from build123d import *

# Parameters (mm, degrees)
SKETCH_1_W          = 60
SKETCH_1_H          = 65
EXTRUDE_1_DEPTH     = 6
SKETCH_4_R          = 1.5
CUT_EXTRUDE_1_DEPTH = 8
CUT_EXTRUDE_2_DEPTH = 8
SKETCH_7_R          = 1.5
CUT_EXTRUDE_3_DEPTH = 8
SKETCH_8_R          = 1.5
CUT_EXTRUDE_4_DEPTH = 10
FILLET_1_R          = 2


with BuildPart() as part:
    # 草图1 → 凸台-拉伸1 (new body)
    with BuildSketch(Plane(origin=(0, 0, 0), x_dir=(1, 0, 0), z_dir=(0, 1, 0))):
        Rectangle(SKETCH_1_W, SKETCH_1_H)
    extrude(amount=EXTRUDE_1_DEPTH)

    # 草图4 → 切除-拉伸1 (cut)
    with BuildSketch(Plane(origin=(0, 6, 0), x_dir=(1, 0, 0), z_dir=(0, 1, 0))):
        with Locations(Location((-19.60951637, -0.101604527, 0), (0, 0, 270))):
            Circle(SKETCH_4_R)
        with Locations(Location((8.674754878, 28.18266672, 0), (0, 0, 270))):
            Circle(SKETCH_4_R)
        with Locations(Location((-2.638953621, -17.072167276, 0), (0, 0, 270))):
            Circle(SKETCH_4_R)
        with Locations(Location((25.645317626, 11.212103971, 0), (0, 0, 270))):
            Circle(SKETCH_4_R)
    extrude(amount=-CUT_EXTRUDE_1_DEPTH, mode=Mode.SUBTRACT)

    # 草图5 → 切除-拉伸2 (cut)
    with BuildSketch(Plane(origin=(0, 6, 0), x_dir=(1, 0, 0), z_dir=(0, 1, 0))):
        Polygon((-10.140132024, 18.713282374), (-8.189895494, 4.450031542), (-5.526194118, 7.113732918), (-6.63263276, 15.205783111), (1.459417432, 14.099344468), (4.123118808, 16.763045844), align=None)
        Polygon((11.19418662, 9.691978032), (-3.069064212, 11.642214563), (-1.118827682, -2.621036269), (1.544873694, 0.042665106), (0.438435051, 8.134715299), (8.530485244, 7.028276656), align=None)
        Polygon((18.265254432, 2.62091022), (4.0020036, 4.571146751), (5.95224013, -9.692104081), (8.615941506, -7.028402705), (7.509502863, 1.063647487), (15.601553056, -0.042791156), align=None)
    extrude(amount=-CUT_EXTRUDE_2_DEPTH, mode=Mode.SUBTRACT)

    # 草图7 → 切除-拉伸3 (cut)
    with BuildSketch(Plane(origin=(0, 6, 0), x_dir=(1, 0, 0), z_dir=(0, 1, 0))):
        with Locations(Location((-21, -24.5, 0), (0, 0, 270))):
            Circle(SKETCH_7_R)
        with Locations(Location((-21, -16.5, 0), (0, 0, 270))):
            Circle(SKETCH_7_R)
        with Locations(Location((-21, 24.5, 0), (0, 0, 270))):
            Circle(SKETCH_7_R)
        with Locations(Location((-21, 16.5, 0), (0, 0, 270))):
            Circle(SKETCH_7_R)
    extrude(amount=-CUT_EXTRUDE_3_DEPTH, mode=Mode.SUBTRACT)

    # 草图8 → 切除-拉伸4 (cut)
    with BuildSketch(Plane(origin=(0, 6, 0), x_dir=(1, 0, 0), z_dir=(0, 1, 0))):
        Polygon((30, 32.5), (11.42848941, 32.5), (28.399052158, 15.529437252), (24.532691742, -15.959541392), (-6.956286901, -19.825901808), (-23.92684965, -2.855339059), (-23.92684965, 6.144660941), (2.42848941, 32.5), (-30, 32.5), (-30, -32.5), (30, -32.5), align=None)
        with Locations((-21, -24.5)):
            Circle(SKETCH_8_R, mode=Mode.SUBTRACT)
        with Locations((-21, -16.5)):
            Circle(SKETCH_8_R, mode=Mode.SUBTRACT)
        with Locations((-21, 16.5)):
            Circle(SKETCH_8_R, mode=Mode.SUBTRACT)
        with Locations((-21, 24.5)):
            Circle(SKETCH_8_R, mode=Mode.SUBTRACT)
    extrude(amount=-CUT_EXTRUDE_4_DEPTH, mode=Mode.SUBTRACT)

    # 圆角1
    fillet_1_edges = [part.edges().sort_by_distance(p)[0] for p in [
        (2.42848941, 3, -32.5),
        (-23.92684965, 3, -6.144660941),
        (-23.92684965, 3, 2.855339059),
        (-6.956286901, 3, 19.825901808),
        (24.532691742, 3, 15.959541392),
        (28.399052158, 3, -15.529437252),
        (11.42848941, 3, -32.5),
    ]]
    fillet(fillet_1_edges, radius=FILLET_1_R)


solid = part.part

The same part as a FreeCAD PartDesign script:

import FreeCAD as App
import Part
import Sketcher
Q = App.Units.Quantity


def edges_at(feature, points):
    """Names of the edges that pass closest to the given points."""
    edges = feature.Shape.Edges
    near = lambda p: min(range(len(edges)), key=lambda i: edges[i].distToShape(Part.Vertex(*p))[0])
    return sorted({f"Edge{near(p) + 1}" for p in points})


def add_polygon(sketch, points):
    """Adds a closed chain of lines whose ends are joined by coincident constraints."""
    first, n = sketch.GeometryCount, len(points)
    for a, b in zip(points, points[1:] + points[:1]):
        sketch.addGeometry(Part.LineSegment(App.Vector(*a, 0), App.Vector(*b, 0)), False)
    for i in range(n):
        sketch.addConstraint(Sketcher.Constraint("Coincident", first + i, 2, first + (i + 1) % n, 1))

doc = App.newDocument("Part")
params = doc.addObject("Spreadsheet::Sheet", "Params")
for row, (alias, value) in enumerate([
    ("sketch1_width", "60 mm"),
    ("sketch1_height", "65 mm"),
    ("pad1_length", "6 mm"),
    ("sketch2_diameter", "3 mm"),
    ("pocket1_length", "8 mm"),
    ("pocket2_length", "8 mm"),
    ("sketch4_diameter", "3 mm"),
    ("pocket3_length", "8 mm"),
    ("sketch5_diameter", "3 mm"),
    ("sketch5_width", "60 mm"),
    ("sketch5_height", "9 mm"),
    ("sketch5_height2", "65 mm"),
    ("sketch5_length", "24 mm"),
    ("pocket4_length", "10 mm"),
    ("fillet_radius", "2 mm"),
], start=1):
    params.set(f"A{row}", alias)
    params.set(f"B{row}", "=" + value)
    params.setAlias(f"B{row}", alias)

body = doc.addObject("PartDesign::Body", "Body")

sketch1 = body.newObject("Sketcher::SketchObject", "Sketch")
sketch1.AttachmentSupport = (doc.getObject("XZ_Plane"), [""])
sketch1.MapMode = "FlatFace"
add_polygon(sketch1, [(-30, -32), (-30, 32), (30, 32), (30, -32)])
sketch1.addConstraint([
    Sketcher.Constraint("Vertical", 0),
    Sketcher.Constraint("Horizontal", 1),
    Sketcher.Constraint("Vertical", 2),
    Sketcher.Constraint("Horizontal", 3),
    Sketcher.Constraint("Symmetric", 0, 2, 2, 2, -1, 1),
    Sketcher.Constraint("DistanceX", 1, 1, 1, 2, Q("60 mm")),
    Sketcher.Constraint("DistanceY", 0, 1, 0, 2, Q("65 mm")),
])
sketch1.setExpression("Constraints[9]", "Params.sketch1_width")
sketch1.setExpression("Constraints[10]", "Params.sketch1_height")
pad1 = body.newObject("PartDesign::Pad", "Pad")
pad1.Profile = sketch1
pad1.setExpression("Length", "Params.pad1_length")
pad1.Reversed = True

sketch2 = body.newObject("Sketcher::SketchObject", "Sketch001")
sketch2.AttachmentSupport = (doc.getObject("XZ_Plane"), [""])
sketch2.MapMode = "FlatFace"
sketch2.AttachmentOffset = App.Placement(App.Vector(0, 0, -6), App.Rotation())
sketch2.addGeometry([
    Part.Circle(App.Vector(-19.6, 0.1, 0), App.Vector(0, 0, 1), 1.5),
    Part.Circle(App.Vector(8.7, -28.2, 0), App.Vector(0, 0, 1), 1.5),
    Part.Circle(App.Vector(-2.6, 17.1, 0), App.Vector(0, 0, 1), 1.5),
    Part.Circle(App.Vector(25.6, -11.2, 0), App.Vector(0, 0, 1), 1.5),
], False)
sketch2.addConstraint([
    Sketcher.Constraint("Equal", 0, 1),
    Sketcher.Constraint("Equal", 1, 2),
    Sketcher.Constraint("Equal", 2, 3),
    Sketcher.Constraint("Diameter", 0, Q("3 mm")),
    Sketcher.Constraint("DistanceX", 0, 3, 1, 3, Q("28.284271 mm")),
    Sketcher.Constraint("DistanceY", 1, 3, 0, 3, Q("28.284271 mm")),
    Sketcher.Constraint("DistanceX", 2, 3, 1, 3, Q("11.313708 mm")),
    Sketcher.Constraint("DistanceX", 2, 3, 3, 3, Q("28.284271 mm")),
    Sketcher.Constraint("DistanceY", 3, 3, 2, 3, Q("28.284271 mm")),
    Sketcher.Constraint("DistanceY", 3, 3, 0, 3, Q("11.313708 mm")),
    Sketcher.Constraint("DistanceX", 0, 3, -1, 1, Q("19.609516 mm")),
    Sketcher.Constraint("DistanceY", -1, 1, 0, 3, Q("0.101605 mm")),
])
sketch2.setExpression("Constraints[3]", "Params.sketch2_diameter")
pocket1 = body.newObject("PartDesign::Pocket", "Pocket")
pocket1.Profile = sketch2
pocket1.setExpression("Length", "Params.pocket1_length")
pocket1.Reversed = True

sketch3 = body.newObject("Sketcher::SketchObject", "Sketch002")
sketch3.AttachmentSupport = (doc.getObject("XZ_Plane"), [""])
sketch3.MapMode = "FlatFace"
sketch3.AttachmentOffset = App.Placement(App.Vector(0, 0, -6), App.Rotation())
add_polygon(sketch3, [(-10.1, -18.7), (-8.2, -4.5), (-5.5, -7.1), (-6.6, -15.2), (1.5, -14.1), (4.1, -16.8)])
add_polygon(sketch3, [(11.2, -9.7), (-3.1, -11.6), (-1.1, 2.6), (1.5, 0), (0.4, -8.1), (8.5, -7)])
add_polygon(sketch3, [(18.3, -2.6), (4, -4.6), (6, 9.7), (8.6, 7), (7.5, -1.1), (15.6, 0)])
sketch3.addConstraint([
    Sketcher.Constraint("Parallel", 0, 2),
    Sketcher.Constraint("Parallel", 1, 4),
    Sketcher.Constraint("Parallel", 3, 5),
    Sketcher.Constraint("Parallel", 5, 6),
    Sketcher.Constraint("Parallel", 2, 7),
    Sketcher.Constraint("Parallel", 4, 8),
    Sketcher.Constraint("Parallel", 7, 9),
    Sketcher.Constraint("Parallel", 6, 10),
    Sketcher.Constraint("Parallel", 8, 11),
    Sketcher.Constraint("Parallel", 10, 12),
    Sketcher.Constraint("Parallel", 9, 13),
    Sketcher.Constraint("Parallel", 11, 14),
    Sketcher.Constraint("Parallel", 13, 15),
    Sketcher.Constraint("Parallel", 12, 16),
    Sketcher.Constraint("Parallel", 14, 17),
    Sketcher.Constraint("Equal", 2, 3),
    Sketcher.Constraint("Equal", 1, 4),
    Sketcher.Constraint("Equal", 0, 5),
    Sketcher.Constraint("Equal", 5, 6),
    Sketcher.Constraint("Equal", 6, 7),
    Sketcher.Constraint("Equal", 4, 8),
    Sketcher.Constraint("Equal", 3, 9),
    Sketcher.Constraint("Equal", 7, 12),
    Sketcher.Constraint("Equal", 12, 13),
    Sketcher.Constraint("Equal", 11, 14),
    Sketcher.Constraint("Equal", 10, 15),
    Sketcher.Constraint("Angle", 1, Q("-45 deg")),
    Sketcher.Constraint("DistanceX", 0, 2, 1, 2, Q("2.663701 mm")),
    Sketcher.Constraint("DistanceX", 5, 2, 2, 2, Q("3.507499 mm")),
    Sketcher.Constraint("DistanceY", 0, 2, -1, 1, Q("4.450032 mm")),
    Sketcher.Constraint("DistanceX", -1, 1, 4, 2, Q("4.123119 mm")),
    Sketcher.Constraint("DistanceY", 11, 2, -1, 1, Q("9.691978 mm")),
    Sketcher.Constraint("DistanceX", -1, 1, 13, 2, Q("5.95224 mm")),
    Sketcher.Constraint("DistanceY", -1, 1, 16, 2, Q("0.042791 mm")),
    Sketcher.Constraint("DistanceX", 2, 2, 1, 2, Q("1.106439 mm")),
    Sketcher.Constraint("DistanceX", 2, 2, 6, 2, Q("3.563569 mm")),
])
pocket2 = body.newObject("PartDesign::Pocket", "Pocket001")
pocket2.Profile = sketch3
pocket2.setExpression("Length", "Params.pocket2_length")
pocket2.Reversed = True

sketch4 = body.newObject("Sketcher::SketchObject", "Sketch003")
sketch4.AttachmentSupport = (doc.getObject("XZ_Plane"), [""])
sketch4.MapMode = "FlatFace"
sketch4.AttachmentOffset = App.Placement(App.Vector(0, 0, -6), App.Rotation())
sketch4.addGeometry([
    Part.Circle(App.Vector(-21, 24.5, 0), App.Vector(0, 0, 1), 1.5),
    Part.Circle(App.Vector(-21, 16.5, 0), App.Vector(0, 0, 1), 1.5),
    Part.Circle(App.Vector(-21, -24.5, 0), App.Vector(0, 0, 1), 1.5),
    Part.Circle(App.Vector(-21, -16.5, 0), App.Vector(0, 0, 1), 1.5),
], False)
sketch4.addConstraint([
    Sketcher.Constraint("Equal", 0, 1),
    Sketcher.Constraint("Equal", 1, 2),
    Sketcher.Constraint("Equal", 2, 3),
    Sketcher.Constraint("Symmetric", 0, 3, 2, 3, -1),
    Sketcher.Constraint("Symmetric", 1, 3, 3, 3, -1),
    Sketcher.Constraint("Vertical", 0, 3, 1, 3),
    Sketcher.Constraint("Diameter", 0, Q("3 mm")),
    Sketcher.Constraint("DistanceX", 0, 3, -1, 1, Q("21 mm")),
    Sketcher.Constraint("DistanceY", 1, 3, 0, 3, Q("8 mm")),
    Sketcher.Constraint("DistanceY", 2, 3, 1, 3, Q("41 mm")),
])
sketch4.setExpression("Constraints[6]", "Params.sketch4_diameter")
pocket3 = body.newObject("PartDesign::Pocket", "Pocket002")
pocket3.Profile = sketch4
pocket3.setExpression("Length", "Params.pocket3_length")
pocket3.Reversed = True

sketch5 = body.newObject("Sketcher::SketchObject", "Sketch004")
sketch5.AttachmentSupport = (doc.getObject("XZ_Plane"), [""])
sketch5.MapMode = "FlatFace"
sketch5.AttachmentOffset = App.Placement(App.Vector(0, 0, -6), App.Rotation())
add_polygon(sketch5, [(30, -32.5), (11.4, -32.5), (28.4, -15.5), (24.5, 16), (-7, 19.8), (-23.9, 2.9), (-23.9, -6.1), (2.4, -32.5), (-30, -32.5), (-30, 32.5), (30, 32.5)])
sketch5.addGeometry(Part.Circle(App.Vector(-21, 24.5, 0), App.Vector(0, 0, 1), 1.5), False)
sketch5.addGeometry(Part.Circle(App.Vector(-21, 16.5, 0), App.Vector(0, 0, 1), 1.5), False)
sketch5.addGeometry(Part.Circle(App.Vector(-21, -16.5, 0), App.Vector(0, 0, 1), 1.5), False)
sketch5.addGeometry(Part.Circle(App.Vector(-21, -24.5, 0), App.Vector(0, 0, 1), 1.5), False)
sketch5.addConstraint([
    Sketcher.Constraint("Horizontal", 0),
    Sketcher.Constraint("Vertical", 5),
    Sketcher.Constraint("Horizontal", 7),
    Sketcher.Constraint("Vertical", 8),
    Sketcher.Constraint("Horizontal", 9),
    Sketcher.Constraint("Vertical", 10),
    Sketcher.Constraint("Equal", 11, 12),
    Sketcher.Constraint("Equal", 12, 13),
    Sketcher.Constraint("Equal", 13, 14),
    Sketcher.Constraint("Symmetric", 7, 2, 9, 2, -1, 1),
    Sketcher.Constraint("Symmetric", 12, 3, 13, 3, -1),
    Sketcher.Constraint("Symmetric", 11, 3, 14, 3, -1),
    Sketcher.Constraint("Parallel", 1, 4),
    Sketcher.Constraint("Perpendicular", 4, 6),
    Sketcher.Constraint("Horizontal", 0, 2, 6, 2),
    Sketcher.Constraint("Vertical", 11, 3, 12, 3),
    Sketcher.Constraint("Equal", 2, 3),
    Sketcher.Constraint("Equal", 1, 4),
    Sketcher.Constraint("Diameter", 11, Q("3 mm")),
    Sketcher.Constraint("DistanceX", 9, 1, 9, 2, Q("60 mm")),
    Sketcher.Constraint("DistanceY", 5, 2, 5, 1, Q("9 mm")),
    Sketcher.Constraint("DistanceY", 8, 1, 8, 2, Q("65 mm")),
    Sketcher.Constraint("Angle", 1, Q("45 deg")),
    Sketcher.Constraint("Angle", 2, Q("97 deg")),
    Sketcher.Constraint("Angle", 3, Q("173 deg")),
    Sketcher.Constraint("Distance", 1, Q("24 mm")),
    Sketcher.Constraint("DistanceX", 11, 3, -1, 1, Q("21 mm")),
    Sketcher.Constraint("DistanceY", 12, 3, 11, 3, Q("8 mm")),
    Sketcher.Constraint("DistanceY", 13, 3, 12, 3, Q("33 mm")),
    Sketcher.Constraint("DistanceX", 0, 2, 0, 1, Q("18.571511 mm")),
    Sketcher.Constraint("DistanceY", -1, 1, 3, 2, Q("19.825902 mm")),
])
sketch5.setExpression("Constraints[29]", "Params.sketch5_diameter")
sketch5.setExpression("Constraints[30]", "Params.sketch5_width")
sketch5.setExpression("Constraints[31]", "Params.sketch5_height")
sketch5.setExpression("Constraints[32]", "Params.sketch5_height2")
sketch5.setExpression("Constraints[36]", "Params.sketch5_length")
pocket4 = body.newObject("PartDesign::Pocket", "Pocket003")
pocket4.Profile = sketch5
pocket4.setExpression("Length", "Params.pocket4_length")
pocket4.Reversed = True
doc.recompute()

fillet = body.newObject("PartDesign::Fillet", "Fillet")
fillet.Base = (pocket4, edges_at(pocket4, [
    (2.428, 3, -32.5),
    (-23.927, 3, -6.145),
    (-23.927, 3, 2.855),
    (-6.956, 3, 19.826),
    (24.533, 3, 15.96),
    (28.399, 3, -15.529),
    (11.428, 3, -32.5),
]))
fillet.setExpression("Radius", "Params.fillet_radius")

doc.recompute()
